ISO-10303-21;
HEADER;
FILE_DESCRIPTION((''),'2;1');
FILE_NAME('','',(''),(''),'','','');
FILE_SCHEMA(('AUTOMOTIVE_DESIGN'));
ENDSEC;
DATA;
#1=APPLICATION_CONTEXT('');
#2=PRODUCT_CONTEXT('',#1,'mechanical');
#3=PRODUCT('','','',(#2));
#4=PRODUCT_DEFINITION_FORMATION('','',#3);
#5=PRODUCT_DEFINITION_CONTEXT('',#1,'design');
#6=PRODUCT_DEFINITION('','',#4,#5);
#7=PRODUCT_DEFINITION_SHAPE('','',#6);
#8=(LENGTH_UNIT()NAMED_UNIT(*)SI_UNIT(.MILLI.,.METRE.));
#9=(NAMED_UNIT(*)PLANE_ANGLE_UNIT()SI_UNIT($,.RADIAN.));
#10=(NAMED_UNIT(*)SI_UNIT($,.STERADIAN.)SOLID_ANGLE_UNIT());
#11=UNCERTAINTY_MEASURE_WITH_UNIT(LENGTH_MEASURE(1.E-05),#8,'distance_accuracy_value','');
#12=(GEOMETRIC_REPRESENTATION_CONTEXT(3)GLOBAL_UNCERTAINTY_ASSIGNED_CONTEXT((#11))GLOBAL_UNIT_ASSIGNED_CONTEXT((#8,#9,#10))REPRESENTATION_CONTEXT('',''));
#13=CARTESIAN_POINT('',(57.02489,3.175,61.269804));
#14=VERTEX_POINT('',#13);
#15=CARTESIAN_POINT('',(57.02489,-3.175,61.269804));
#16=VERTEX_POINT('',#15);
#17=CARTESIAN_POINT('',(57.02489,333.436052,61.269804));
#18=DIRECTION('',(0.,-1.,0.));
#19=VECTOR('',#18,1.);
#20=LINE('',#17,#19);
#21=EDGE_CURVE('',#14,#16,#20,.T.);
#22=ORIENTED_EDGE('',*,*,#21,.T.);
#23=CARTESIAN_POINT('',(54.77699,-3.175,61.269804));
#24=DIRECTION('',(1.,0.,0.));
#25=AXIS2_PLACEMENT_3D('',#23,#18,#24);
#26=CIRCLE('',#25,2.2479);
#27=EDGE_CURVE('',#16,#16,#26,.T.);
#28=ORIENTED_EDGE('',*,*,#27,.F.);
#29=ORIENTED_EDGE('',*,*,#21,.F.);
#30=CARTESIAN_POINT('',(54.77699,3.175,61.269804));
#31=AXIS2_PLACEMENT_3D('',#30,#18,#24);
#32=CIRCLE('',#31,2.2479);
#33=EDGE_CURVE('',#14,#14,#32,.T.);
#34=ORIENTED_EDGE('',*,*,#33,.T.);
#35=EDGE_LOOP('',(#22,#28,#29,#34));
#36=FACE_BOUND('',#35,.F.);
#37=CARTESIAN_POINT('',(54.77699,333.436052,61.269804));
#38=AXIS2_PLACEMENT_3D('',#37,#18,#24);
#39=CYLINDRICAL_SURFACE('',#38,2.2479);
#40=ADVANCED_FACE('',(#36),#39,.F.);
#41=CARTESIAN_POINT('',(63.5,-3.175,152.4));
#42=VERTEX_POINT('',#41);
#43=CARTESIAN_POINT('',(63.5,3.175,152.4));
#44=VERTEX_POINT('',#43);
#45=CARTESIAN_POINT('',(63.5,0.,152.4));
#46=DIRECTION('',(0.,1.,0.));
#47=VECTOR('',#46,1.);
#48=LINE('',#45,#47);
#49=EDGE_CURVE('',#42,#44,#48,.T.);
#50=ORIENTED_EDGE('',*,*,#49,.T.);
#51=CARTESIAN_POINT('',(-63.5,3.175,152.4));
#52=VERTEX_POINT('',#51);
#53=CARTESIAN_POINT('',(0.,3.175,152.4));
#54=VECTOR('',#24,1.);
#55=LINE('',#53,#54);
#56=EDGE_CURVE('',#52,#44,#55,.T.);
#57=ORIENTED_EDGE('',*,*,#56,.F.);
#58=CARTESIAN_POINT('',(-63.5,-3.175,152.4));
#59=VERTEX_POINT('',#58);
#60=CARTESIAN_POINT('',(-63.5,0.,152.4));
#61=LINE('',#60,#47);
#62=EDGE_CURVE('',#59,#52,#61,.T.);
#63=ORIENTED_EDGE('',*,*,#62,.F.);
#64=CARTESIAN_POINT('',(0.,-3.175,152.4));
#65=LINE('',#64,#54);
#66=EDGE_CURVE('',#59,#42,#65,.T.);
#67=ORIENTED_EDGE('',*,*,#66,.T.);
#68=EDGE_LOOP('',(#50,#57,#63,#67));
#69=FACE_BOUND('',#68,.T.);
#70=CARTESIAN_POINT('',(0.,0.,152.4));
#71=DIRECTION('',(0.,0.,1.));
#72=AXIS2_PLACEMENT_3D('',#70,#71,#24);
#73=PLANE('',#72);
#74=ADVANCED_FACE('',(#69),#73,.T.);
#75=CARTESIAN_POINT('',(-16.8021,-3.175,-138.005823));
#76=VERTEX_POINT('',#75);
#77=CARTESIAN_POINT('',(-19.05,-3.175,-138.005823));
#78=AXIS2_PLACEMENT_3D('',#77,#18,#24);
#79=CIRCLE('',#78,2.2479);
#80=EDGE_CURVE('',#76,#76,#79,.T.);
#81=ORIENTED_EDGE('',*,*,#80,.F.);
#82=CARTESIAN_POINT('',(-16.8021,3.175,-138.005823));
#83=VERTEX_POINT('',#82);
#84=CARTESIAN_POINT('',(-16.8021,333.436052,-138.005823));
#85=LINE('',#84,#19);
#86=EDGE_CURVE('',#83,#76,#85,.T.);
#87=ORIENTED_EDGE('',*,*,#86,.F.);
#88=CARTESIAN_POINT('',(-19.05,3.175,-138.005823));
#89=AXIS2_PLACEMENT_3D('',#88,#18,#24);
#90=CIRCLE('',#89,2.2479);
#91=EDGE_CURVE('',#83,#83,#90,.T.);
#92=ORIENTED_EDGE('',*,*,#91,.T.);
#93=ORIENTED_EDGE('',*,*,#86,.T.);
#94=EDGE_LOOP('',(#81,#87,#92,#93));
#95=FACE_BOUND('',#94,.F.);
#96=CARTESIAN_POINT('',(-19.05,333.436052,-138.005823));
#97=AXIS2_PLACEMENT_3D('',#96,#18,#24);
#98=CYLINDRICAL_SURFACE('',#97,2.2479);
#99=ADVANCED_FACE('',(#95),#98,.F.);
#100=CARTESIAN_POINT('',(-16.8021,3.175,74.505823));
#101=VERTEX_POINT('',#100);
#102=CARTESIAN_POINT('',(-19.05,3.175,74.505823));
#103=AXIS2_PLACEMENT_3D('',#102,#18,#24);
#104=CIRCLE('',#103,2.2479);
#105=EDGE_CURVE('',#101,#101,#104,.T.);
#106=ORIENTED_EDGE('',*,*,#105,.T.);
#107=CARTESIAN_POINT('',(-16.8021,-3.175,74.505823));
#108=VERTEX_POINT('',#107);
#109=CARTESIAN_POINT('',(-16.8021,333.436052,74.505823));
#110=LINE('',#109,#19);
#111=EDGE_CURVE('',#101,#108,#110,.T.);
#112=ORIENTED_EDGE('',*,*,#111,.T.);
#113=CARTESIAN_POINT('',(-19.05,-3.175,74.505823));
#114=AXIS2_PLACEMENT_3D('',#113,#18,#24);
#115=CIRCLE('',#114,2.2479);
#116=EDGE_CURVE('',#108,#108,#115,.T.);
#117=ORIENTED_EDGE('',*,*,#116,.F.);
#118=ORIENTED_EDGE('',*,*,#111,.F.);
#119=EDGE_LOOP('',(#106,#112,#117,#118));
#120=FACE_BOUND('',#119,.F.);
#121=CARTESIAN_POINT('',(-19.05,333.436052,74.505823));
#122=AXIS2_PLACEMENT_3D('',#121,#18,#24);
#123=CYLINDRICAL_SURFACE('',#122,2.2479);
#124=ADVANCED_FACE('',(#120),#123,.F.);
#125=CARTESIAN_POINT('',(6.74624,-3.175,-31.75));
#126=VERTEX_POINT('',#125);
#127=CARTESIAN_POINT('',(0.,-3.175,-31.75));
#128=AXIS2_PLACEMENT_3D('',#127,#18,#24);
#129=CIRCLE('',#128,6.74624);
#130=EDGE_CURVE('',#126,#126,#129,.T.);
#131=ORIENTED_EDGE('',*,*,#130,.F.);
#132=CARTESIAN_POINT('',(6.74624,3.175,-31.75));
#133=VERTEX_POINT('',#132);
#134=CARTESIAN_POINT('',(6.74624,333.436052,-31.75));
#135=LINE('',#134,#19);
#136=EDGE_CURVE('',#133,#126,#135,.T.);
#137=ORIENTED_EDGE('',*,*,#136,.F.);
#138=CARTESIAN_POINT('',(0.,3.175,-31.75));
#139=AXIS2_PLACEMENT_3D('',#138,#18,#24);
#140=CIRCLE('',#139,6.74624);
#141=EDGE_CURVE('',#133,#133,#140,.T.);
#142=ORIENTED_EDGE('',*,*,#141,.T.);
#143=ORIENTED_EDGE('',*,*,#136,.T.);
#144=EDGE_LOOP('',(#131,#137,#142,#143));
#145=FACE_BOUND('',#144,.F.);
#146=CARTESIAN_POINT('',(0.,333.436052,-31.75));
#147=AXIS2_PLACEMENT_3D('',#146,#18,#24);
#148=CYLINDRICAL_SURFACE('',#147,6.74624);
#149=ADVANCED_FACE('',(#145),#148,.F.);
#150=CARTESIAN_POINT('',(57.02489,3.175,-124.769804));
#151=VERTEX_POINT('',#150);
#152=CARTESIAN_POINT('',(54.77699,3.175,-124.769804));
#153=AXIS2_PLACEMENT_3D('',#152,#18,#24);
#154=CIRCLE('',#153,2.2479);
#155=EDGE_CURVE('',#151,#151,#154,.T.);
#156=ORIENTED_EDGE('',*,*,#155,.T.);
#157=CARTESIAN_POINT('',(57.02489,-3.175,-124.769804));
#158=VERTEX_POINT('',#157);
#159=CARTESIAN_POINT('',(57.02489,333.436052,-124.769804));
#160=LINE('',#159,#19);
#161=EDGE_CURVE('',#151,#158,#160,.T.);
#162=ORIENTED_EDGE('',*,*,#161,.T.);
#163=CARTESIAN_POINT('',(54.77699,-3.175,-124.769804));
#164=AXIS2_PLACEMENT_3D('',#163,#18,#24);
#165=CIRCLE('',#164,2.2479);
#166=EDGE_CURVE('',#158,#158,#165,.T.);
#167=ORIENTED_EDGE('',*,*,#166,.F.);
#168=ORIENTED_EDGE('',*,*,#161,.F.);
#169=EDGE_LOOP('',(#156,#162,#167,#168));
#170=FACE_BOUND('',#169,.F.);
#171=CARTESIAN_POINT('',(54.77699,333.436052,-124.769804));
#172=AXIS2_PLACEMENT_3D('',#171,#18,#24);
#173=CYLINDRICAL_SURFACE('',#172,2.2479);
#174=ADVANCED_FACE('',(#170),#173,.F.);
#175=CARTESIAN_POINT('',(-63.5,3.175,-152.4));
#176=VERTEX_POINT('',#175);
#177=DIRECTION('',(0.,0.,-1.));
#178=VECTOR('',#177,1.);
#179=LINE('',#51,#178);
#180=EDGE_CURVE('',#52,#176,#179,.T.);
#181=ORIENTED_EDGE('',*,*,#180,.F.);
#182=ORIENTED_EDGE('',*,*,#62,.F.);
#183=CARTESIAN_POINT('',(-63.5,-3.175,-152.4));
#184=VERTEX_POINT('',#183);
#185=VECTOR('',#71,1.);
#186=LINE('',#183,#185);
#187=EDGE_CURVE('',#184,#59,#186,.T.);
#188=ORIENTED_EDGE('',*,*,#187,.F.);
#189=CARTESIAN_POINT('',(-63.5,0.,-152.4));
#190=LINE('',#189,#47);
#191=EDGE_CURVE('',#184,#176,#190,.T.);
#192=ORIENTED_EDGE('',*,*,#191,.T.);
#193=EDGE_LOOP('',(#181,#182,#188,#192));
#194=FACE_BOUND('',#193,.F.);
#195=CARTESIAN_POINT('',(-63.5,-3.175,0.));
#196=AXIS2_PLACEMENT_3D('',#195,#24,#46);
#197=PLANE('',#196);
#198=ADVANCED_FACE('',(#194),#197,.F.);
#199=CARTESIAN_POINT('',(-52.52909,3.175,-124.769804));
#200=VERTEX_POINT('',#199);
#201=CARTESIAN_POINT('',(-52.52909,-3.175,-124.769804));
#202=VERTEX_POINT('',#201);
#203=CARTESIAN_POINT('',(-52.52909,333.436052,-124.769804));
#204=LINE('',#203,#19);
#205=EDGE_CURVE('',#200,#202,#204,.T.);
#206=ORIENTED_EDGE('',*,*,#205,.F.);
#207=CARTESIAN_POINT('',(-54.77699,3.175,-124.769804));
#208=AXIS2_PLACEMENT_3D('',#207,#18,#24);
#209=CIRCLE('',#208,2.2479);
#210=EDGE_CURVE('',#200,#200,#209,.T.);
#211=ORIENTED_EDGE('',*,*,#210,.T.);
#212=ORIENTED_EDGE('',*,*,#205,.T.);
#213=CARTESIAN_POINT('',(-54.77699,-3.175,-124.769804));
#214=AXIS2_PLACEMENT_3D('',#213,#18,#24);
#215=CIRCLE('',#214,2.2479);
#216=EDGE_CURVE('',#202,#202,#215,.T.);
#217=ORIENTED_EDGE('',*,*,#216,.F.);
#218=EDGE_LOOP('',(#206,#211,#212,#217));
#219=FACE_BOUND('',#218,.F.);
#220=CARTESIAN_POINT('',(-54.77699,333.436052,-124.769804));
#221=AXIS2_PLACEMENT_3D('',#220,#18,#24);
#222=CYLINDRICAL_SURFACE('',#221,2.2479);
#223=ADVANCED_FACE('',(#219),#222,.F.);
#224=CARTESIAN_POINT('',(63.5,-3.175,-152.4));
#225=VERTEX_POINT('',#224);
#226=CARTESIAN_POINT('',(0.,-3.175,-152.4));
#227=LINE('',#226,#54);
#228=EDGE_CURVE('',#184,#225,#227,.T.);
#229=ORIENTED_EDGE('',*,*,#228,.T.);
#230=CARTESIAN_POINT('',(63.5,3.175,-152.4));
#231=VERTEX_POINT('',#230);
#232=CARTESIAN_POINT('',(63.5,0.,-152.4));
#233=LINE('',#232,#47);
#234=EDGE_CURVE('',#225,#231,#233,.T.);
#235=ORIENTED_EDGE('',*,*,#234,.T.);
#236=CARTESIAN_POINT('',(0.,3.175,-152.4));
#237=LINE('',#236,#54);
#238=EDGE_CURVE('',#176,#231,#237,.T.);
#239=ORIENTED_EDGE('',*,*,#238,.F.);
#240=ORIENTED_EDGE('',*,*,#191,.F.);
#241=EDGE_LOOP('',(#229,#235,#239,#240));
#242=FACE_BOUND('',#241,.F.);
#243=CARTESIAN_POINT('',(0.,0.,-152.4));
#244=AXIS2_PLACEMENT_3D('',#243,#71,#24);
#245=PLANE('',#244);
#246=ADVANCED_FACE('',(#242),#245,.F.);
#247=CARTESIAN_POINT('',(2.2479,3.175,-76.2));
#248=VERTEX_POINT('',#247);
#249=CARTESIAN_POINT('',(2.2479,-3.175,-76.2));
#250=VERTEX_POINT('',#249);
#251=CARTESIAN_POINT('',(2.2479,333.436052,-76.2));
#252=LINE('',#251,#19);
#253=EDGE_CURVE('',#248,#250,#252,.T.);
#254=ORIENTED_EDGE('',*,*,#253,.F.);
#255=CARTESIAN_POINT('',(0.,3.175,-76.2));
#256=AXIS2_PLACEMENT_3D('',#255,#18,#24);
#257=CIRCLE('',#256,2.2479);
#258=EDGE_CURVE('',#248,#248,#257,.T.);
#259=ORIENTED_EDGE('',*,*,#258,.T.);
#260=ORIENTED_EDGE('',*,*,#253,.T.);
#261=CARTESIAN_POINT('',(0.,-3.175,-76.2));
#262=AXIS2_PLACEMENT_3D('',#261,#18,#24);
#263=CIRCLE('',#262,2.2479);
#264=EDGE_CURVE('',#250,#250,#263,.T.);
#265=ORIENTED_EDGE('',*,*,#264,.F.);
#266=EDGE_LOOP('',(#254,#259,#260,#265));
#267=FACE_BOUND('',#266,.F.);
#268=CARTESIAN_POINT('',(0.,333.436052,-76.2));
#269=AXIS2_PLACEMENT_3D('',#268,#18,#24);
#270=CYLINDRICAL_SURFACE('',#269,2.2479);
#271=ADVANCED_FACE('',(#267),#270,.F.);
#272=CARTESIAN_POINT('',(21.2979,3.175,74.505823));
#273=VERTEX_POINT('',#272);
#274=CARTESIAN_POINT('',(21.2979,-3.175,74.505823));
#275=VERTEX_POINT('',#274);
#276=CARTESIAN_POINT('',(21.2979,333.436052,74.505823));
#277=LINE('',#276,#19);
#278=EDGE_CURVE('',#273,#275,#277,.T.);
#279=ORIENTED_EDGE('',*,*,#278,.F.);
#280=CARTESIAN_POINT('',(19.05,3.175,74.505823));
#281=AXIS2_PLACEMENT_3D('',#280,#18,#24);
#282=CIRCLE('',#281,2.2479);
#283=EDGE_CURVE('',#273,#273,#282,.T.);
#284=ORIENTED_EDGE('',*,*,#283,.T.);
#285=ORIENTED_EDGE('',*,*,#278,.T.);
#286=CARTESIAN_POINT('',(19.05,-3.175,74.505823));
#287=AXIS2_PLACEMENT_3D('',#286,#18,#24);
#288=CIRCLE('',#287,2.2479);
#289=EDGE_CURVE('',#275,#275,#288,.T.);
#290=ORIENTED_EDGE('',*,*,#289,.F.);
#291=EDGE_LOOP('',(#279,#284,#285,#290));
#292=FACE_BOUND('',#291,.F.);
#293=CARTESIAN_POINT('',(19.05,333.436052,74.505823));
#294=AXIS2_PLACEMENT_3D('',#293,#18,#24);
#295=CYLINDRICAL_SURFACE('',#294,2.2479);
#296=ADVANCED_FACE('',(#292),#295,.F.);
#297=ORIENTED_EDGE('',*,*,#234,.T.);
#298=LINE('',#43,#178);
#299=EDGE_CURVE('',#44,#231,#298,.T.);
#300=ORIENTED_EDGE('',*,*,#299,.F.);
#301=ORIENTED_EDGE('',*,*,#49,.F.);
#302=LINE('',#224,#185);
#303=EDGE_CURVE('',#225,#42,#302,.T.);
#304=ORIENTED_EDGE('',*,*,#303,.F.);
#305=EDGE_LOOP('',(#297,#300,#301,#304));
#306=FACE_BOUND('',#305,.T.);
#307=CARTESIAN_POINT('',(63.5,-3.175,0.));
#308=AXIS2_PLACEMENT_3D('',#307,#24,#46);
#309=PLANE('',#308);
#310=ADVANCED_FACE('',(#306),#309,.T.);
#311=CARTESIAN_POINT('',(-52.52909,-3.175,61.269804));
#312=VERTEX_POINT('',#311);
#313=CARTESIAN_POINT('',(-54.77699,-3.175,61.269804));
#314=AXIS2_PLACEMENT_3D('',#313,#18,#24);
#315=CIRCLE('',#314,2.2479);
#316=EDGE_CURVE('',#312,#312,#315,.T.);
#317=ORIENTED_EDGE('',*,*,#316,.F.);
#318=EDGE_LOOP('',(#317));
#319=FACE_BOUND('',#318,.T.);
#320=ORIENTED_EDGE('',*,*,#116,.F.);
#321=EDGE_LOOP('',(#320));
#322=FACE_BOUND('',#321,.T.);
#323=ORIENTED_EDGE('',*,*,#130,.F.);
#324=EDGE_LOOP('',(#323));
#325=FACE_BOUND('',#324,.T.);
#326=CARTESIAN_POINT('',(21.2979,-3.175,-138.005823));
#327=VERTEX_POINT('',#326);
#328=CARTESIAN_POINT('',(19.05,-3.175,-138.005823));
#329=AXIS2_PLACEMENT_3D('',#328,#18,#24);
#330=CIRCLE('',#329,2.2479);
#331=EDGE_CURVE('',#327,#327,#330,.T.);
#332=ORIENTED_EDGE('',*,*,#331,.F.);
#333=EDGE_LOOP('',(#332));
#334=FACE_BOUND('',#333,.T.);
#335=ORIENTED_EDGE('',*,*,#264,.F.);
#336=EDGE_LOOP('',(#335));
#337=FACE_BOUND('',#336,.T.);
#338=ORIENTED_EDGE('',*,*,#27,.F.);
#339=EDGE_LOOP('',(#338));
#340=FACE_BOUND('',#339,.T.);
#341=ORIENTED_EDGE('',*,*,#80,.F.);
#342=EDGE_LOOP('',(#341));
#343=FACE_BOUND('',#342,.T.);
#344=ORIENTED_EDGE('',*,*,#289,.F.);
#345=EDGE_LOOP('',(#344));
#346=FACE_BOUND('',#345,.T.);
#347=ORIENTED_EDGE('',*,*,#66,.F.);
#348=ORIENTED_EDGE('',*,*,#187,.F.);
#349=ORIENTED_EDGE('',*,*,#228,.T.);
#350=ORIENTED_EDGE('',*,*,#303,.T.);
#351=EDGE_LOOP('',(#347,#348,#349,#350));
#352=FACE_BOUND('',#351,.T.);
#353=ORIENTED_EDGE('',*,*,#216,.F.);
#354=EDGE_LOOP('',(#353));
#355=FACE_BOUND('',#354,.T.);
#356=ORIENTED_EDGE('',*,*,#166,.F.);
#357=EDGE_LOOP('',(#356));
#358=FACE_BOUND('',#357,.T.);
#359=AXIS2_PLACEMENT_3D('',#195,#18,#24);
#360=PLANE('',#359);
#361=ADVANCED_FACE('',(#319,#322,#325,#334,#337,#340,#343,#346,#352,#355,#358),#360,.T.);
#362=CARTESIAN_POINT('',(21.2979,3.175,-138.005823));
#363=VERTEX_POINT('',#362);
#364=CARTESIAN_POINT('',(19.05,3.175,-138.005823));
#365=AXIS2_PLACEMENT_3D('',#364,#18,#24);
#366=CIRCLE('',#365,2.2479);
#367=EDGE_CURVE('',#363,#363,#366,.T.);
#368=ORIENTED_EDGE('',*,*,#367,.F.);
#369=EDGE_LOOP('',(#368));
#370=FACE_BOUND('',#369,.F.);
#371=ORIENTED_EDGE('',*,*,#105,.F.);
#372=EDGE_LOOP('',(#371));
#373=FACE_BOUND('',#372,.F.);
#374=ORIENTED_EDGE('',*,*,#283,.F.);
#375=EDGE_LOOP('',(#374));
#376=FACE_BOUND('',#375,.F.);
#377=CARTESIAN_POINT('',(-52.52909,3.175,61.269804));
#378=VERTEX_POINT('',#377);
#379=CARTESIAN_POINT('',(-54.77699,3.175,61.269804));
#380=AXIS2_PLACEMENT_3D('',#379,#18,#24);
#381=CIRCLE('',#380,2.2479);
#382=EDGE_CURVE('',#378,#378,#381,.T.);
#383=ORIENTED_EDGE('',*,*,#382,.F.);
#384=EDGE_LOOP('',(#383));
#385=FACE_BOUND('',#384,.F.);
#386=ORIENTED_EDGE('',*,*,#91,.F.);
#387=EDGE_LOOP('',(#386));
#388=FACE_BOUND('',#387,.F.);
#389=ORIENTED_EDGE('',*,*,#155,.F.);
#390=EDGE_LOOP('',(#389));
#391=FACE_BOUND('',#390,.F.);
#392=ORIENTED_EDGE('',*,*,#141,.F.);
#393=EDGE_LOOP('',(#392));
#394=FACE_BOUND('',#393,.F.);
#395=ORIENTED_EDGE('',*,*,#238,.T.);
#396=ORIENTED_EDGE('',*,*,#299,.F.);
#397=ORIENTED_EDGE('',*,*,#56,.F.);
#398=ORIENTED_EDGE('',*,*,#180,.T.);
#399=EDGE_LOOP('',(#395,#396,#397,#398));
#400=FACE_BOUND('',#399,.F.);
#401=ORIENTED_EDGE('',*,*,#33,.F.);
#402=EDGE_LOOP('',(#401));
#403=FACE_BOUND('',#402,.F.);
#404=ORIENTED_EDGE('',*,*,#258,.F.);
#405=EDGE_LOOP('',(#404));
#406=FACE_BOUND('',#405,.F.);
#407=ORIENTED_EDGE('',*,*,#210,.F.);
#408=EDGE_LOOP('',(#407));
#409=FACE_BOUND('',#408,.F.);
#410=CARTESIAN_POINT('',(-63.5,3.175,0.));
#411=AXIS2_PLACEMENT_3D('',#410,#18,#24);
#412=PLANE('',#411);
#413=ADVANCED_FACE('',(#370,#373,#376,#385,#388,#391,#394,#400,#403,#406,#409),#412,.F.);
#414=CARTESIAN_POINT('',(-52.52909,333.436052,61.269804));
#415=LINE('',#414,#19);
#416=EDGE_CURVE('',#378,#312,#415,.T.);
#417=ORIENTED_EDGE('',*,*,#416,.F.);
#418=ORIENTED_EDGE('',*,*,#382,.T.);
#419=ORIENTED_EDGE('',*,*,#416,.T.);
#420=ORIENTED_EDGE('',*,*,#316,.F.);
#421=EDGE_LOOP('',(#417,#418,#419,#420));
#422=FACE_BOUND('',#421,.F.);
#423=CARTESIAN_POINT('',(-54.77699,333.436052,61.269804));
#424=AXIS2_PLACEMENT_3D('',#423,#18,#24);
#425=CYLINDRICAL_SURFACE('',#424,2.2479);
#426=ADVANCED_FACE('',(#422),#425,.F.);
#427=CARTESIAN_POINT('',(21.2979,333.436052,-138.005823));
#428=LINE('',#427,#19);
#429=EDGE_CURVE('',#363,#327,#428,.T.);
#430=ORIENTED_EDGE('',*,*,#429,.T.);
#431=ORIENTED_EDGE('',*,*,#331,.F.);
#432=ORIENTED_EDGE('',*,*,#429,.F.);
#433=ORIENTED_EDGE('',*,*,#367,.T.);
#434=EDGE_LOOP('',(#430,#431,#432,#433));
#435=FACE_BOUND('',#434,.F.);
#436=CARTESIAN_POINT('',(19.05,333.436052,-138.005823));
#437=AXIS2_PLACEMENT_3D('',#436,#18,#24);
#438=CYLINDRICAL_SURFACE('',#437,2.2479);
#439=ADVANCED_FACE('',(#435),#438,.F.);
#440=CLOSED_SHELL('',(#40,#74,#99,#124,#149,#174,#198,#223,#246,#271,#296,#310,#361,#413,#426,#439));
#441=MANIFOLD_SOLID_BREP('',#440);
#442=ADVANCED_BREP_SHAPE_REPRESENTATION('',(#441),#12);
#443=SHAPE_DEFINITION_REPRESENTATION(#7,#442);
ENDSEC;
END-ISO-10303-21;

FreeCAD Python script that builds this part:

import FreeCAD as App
import Part
import Sketcher

V = App.Vector
Q = App.Units.Quantity


def add_polygon(sketch, points):
    """Adds a closed chain of lines whose ends are joined by coincident constraints."""
    first, n = sketch.GeometryCount, len(points)
    for a, b in zip(points, points[1:] + points[:1]):
        sketch.addGeometry(Part.LineSegment(App.Vector(*a, 0), App.Vector(*b, 0)), False)
    for i in range(n):
        sketch.addConstraint(Sketcher.Constraint("Coincident", first + i, 2, first + (i + 1) % n, 1))

doc = App.newDocument("Part")
params = doc.addObject("Spreadsheet::Sheet", "Params")
for row, (alias, value) in enumerate([
    ("sketch1_width", "5 in"),
    ("sketch1_height", "0.25 in"),
    ("pad1_length", "12 in"),
    ("sketch2_diameter", "0.177 in"),
    ("hole_diameter", "0.177 in"),
    ("hole2_diameter", "0.5312 in"),
    ("sketch4_diameter", "0.177 in"),
    ("hole3_diameter", "0.177 in"),
], start=1):
    params.set(f"A{row}", alias)
    params.set(f"B{row}", "=" + value)
    params.setAlias(f"B{row}", alias)

body = doc.addObject("PartDesign::Body", "Body")

sketch1 = body.newObject("Sketcher::SketchObject", "Sketch")
sketch1.AttachmentSupport = (doc.getObject("XY_Plane"), [""])
sketch1.MapMode = "FlatFace"
add_polygon(sketch1, [(-64, 3), (-64, -3), (64, -3), (64, 3)])
sketch1.addConstraint([
    Sketcher.Constraint("Vertical", 0),
    Sketcher.Constraint("Horizontal", 1),
    Sketcher.Constraint("Vertical", 2),
    Sketcher.Constraint("Horizontal", 3),
    Sketcher.Constraint("Symmetric", 0, 2, 2, 2, -1, 1),
    Sketcher.Constraint("DistanceX", 1, 1, 1, 2, Q("5 in")),
    Sketcher.Constraint("DistanceY", 0, 2, 0, 1, Q("0.25 in")),
])
sketch1.setExpression("Constraints[9]", "Params.sketch1_width")
sketch1.setExpression("Constraints[10]", "Params.sketch1_height")
pad1 = body.newObject("PartDesign::Pad", "Pad")
pad1.Profile = sketch1
pad1.setExpression("Length", "Params.pad1_length")
pad1.Midplane = True

sketch2 = body.newObject("Sketcher::SketchObject", "Sketch001")
sketch2.AttachmentSupport = (doc.getObject("XZ_Plane"), [""])
sketch2.MapMode = "FlatFace"
sketch2.AttachmentOffset = App.Placement(V(0, 0, -0.125 * 25.4), App.Rotation())
sketch2.addGeometry([
    Part.Circle(V(-54.8, -124.8, 0), V(0, 0, 1), 2.2),
    Part.Circle(V(-19.1, -138, 0), V(0, 0, 1), 2.2),
    Part.Circle(V(19.1, -138, 0), V(0, 0, 1), 2.2),
    Part.Circle(V(54.8, -124.8, 0), V(0, 0, 1), 2.2),
    Part.Circle(V(-54.8, 61.3, 0), V(0, 0, 1), 2.2),
    Part.Circle(V(-19.1, 74.5, 0), V(0, 0, 1), 2.2),
    Part.Circle(V(19.1, 74.5, 0), V(0, 0, 1), 2.2),
    Part.Circle(V(54.8, 61.3, 0), V(0, 0, 1), 2.2),
], False)
sketch2.addConstraint([
    Sketcher.Constraint("Equal", 0, 1),
    Sketcher.Constraint("Equal", 1, 2),
    Sketcher.Constraint("Equal", 2, 3),
    Sketcher.Constraint("Equal", 3, 4),
    Sketcher.Constraint("Equal", 4, 5),
    Sketcher.Constraint("Equal", 5, 6),
    Sketcher.Constraint("Equal", 6, 7),
    Sketcher.Constraint("Symmetric", 1, 3, 2, 3, -2),
    Sketcher.Constraint("Symmetric", 0, 3, 3, 3, -2),
    Sketcher.Constraint("Symmetric", 5, 3, 6, 3, -2),
    Sketcher.Constraint("Symmetric", 4, 3, 7, 3, -2),
    Sketcher.Constraint("Vertical", 0, 3, 4, 3),
    Sketcher.Constraint("Vertical", 1, 3, 5, 3),
    Sketcher.Constraint("Diameter", 0, Q("0.177 in")),
    Sketcher.Constraint("DistanceX", 1, 3, 2, 3, Q("1.5 in")),
    Sketcher.Constraint("DistanceY", 1, 3, -1, 1, Q("5.4333001 in")),
    Sketcher.Constraint("DistanceY", -1, 1, 5, 3, Q("2.9333001 in")),
    Sketcher.Constraint("DistanceX", 0, 3, -1, 1, Q("54.77699 mm")),
    Sketcher.Constraint("DistanceY", 1, 3, 0, 3, Q("13.23602 mm")),
    Sketcher.Constraint("DistanceY", 4, 3, 5, 3, Q("13.23602 mm")),
])
sketch2.setExpression("Constraints[13]", "Params.sketch2_diameter")
doc.recompute()
hole = body.newObject("PartDesign::Hole", "Hole")
hole.Profile = sketch2
hole.ThreadType = "None"
hole.setExpression("Diameter", "Params.hole_diameter")
hole.DepthType = "ThroughAll"
hole.Reversed = True

sketch3 = body.newObject("Sketcher::SketchObject", "Sketch002")
sketch3.AttachmentSupport = (doc.getObject("XZ_Plane"), [""])
sketch3.MapMode = "FlatFace"
sketch3.AttachmentOffset = App.Placement(V(0, 0, -0.125 * 25.4), App.Rotation())
sketch3.addGeometry(Part.Circle(V(0, -32, 0), V(0, 0, 1), 7), False)
sketch3.addConstraint([
    Sketcher.Constraint("PointOnObject", 0, 3, -2),
    Sketcher.Constraint("Diameter", 0, Q("0.5312 in")),
    Sketcher.Constraint("DistanceY", 0, 3, -1, 1, Q("1.25 in")),
])
doc.recompute()
hole2 = body.newObject("PartDesign::Hole", "Hole001")
hole2.Profile = sketch3
hole2.ThreadType = "None"
hole2.setExpression("Diameter", "Params.hole2_diameter")
hole2.DepthType = "ThroughAll"
hole2.Reversed = True

sketch4 = body.newObject("Sketcher::SketchObject", "Sketch003")
sketch4.AttachmentSupport = (doc.getObject("XZ_Plane"), [""])
sketch4.MapMode = "FlatFace"
sketch4.AttachmentOffset = App.Placement(V(0, 0, -0.125 * 25.4), App.Rotation())
sketch4.addGeometry(Part.Circle(V(0, -76.2, 0), V(0, 0, 1), 2.2), False)
sketch4.addConstraint([
    Sketcher.Constraint("PointOnObject", 0, 3, -2),
    Sketcher.Constraint("Diameter", 0, Q("0.177 in")),
    Sketcher.Constraint("DistanceY", 0, 3, -1, 1, Q("3 in")),
])
sketch4.setExpression("Constraints[1]", "Params.sketch4_diameter")
doc.recompute()
hole3 = body.newObject("PartDesign::Hole", "Hole002")
hole3.Profile = sketch4
hole3.ThreadType = "None"
hole3.setExpression("Diameter", "Params.hole3_diameter")
hole3.DepthType = "ThroughAll"
hole3.Reversed = True

doc.recompute()
